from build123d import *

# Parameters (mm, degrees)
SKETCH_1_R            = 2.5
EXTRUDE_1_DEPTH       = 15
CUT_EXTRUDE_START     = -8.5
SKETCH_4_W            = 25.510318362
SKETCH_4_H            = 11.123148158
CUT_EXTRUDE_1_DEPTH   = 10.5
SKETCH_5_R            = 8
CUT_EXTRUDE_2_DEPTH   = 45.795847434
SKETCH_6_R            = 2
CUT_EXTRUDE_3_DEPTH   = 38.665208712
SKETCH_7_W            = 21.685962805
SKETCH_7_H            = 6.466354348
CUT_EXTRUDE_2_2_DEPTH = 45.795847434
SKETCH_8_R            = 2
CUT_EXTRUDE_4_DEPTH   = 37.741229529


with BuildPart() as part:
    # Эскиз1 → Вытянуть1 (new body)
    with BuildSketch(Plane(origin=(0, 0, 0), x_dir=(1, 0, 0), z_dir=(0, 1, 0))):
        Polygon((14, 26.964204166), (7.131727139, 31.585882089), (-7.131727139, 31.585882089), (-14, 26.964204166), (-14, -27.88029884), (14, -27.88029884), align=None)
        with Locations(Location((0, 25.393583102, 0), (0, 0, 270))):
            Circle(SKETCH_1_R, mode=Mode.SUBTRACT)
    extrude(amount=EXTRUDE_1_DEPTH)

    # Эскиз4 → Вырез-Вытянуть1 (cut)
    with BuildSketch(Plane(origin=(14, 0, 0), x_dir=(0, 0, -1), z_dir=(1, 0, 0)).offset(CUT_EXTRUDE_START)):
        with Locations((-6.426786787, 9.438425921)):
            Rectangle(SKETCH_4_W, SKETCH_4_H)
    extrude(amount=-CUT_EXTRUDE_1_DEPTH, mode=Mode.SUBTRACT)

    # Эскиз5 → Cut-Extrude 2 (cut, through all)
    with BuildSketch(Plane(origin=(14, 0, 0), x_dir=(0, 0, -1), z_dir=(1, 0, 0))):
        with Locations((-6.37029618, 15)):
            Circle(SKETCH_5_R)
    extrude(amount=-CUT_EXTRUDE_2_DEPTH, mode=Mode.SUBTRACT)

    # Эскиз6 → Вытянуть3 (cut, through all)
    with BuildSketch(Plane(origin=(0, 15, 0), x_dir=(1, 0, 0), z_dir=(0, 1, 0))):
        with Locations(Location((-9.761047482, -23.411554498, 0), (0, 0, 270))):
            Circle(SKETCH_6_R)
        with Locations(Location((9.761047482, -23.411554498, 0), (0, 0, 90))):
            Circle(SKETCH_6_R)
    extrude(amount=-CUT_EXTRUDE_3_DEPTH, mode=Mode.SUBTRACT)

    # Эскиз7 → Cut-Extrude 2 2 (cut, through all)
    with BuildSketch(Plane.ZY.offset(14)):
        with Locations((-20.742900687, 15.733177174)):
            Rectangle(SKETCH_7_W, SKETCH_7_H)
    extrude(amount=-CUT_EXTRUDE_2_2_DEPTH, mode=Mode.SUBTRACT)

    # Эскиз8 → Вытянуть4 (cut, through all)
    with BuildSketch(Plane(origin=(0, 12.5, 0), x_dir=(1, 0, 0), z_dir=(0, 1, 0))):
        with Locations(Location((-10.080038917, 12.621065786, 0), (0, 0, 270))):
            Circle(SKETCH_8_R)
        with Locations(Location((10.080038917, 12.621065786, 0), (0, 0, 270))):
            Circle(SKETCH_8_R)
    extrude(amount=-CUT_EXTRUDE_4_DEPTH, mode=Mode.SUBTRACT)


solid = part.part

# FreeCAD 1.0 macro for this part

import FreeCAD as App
import Part
import Sketcher

doc = App.newDocument("Part")
body = doc.addObject("PartDesign::Body", "Body")

# Sketch on XZ plane
sketch1 = body.newObject("Sketcher::SketchObject", "Sketch")
sketch1.AttachmentSupport = (doc.getObject("XZ_Plane"), [""])
sketch1.MapMode = "FlatFace"
sketch1.addGeometry(Part.LineSegment(App.Vector(14, -27, 0), App.Vector(7.1, -31.6, 0)), False)
sketch1.addGeometry(Part.LineSegment(App.Vector(7.1, -31.6, 0), App.Vector(-7.1, -31.6, 0)), False)
sketch1.addGeometry(Part.LineSegment(App.Vector(-7.1, -31.6, 0), App.Vector(-14, -27, 0)), False)
sketch1.addGeometry(Part.LineSegment(App.Vector(-14, -27, 0), App.Vector(-14, 27.9, 0)), False)
sketch1.addGeometry(Part.LineSegment(App.Vector(-14, 27.9, 0), App.Vector(14, 27.9, 0)), False)
sketch1.addGeometry(Part.LineSegment(App.Vector(14, 27.9, 0), App.Vector(14, -27, 0)), False)
sketch1.addGeometry(Part.Circle(App.Vector(0, -25.4, 0), App.Vector(0, 0, 1), 2.5), False)
sketch1.addConstraint(Sketcher.Constraint("Coincident", 0, 2, 1, 1))
sketch1.addConstraint(Sketcher.Constraint("Coincident", 1, 2, 2, 1))
sketch1.addConstraint(Sketcher.Constraint("Coincident", 2, 2, 3, 1))
sketch1.addConstraint(Sketcher.Constraint("Coincident", 3, 2, 4, 1))
sketch1.addConstraint(Sketcher.Constraint("Coincident", 4, 2, 5, 1))
sketch1.addConstraint(Sketcher.Constraint("Coincident", 5, 2, 0, 1))
sketch1.addConstraint(Sketcher.Constraint("Horizontal", 1))
sketch1.addConstraint(Sketcher.Constraint("Vertical", 3))
sketch1.addConstraint(Sketcher.Constraint("Horizontal", 4))
sketch1.addConstraint(Sketcher.Constraint("Vertical", 5))
sketch1.addConstraint(Sketcher.Constraint("Symmetric", 2, 2, 5, 2, -2))
sketch1.addConstraint(Sketcher.Constraint("PointOnObject", 6, 3, -2))
sketch1.addConstraint(Sketcher.Constraint("Equal", 0, 2))
sketch1.addConstraint(Sketcher.Constraint("Diameter", 6, 5.0))
sketch1.addConstraint(Sketcher.Constraint("DistanceX", 4, 1, 4, 2, 28.0))
sketch1.addConstraint(Sketcher.Constraint("DistanceY", -1, 1, 3, 2, 27.880299))
sketch1.addConstraint(Sketcher.Constraint("DistanceY", 0, 2, 6, 3, 6.192299))
sketch1.addConstraint(Sketcher.Constraint("Distance", 0, 8.278471))
sketch1.addConstraint(Sketcher.Constraint("DistanceX", 1, 2, 1, 1, 14.263454))
sketch1.addConstraint(Sketcher.Constraint("DistanceY", 3, 1, 3, 2, 54.844503))
pad1 = body.newObject("PartDesign::Pad", "Pad")
pad1.Profile = sketch1
pad1.Length = 15
pad1.Reversed = True

# Sketch on YZ plane
sketch2 = body.newObject("Sketcher::SketchObject", "Sketch001")
sketch2.AttachmentSupport = (doc.getObject("YZ_Plane"), [""])
sketch2.MapMode = "FlatFace"
sketch2.AttachmentOffset = App.Placement(App.Vector(0, 0, 5.5), App.Rotation())
sketch2.addGeometry(Part.LineSegment(App.Vector(15, 19, 0), App.Vector(4, 19, 0)), False)
sketch2.addGeometry(Part.LineSegment(App.Vector(4, 19, 0), App.Vector(4, -6, 0)), False)
sketch2.addGeometry(Part.LineSegment(App.Vector(4, -6, 0), App.Vector(15, -6, 0)), False)
sketch2.addGeometry(Part.LineSegment(App.Vector(15, -6, 0), App.Vector(15, 19, 0)), False)
sketch2.addConstraint(Sketcher.Constraint("Coincident", 0, 2, 1, 1))
sketch2.addConstraint(Sketcher.Constraint("Coincident", 1, 2, 2, 1))
sketch2.addConstraint(Sketcher.Constraint("Coincident", 2, 2, 3, 1))
sketch2.addConstraint(Sketcher.Constraint("Coincident", 3, 2, 0, 1))
sketch2.addConstraint(Sketcher.Constraint("Horizontal", 0))
sketch2.addConstraint(Sketcher.Constraint("Vertical", 1))
sketch2.addConstraint(Sketcher.Constraint("Horizontal", 2))
sketch2.addConstraint(Sketcher.Constraint("Vertical", 3))
sketch2.addConstraint(Sketcher.Constraint("DistanceX", -1, 1, 2, 2, 15.0))
sketch2.addConstraint(Sketcher.Constraint("DistanceX", 0, 2, 0, 1, 11.123148))
sketch2.addConstraint(Sketcher.Constraint("DistanceY", 1, 2, 1, 1, 25.510318))
sketch2.addConstraint(Sketcher.Constraint("DistanceY", -1, 1, 0, 2, 19.181946))
pocket1 = body.newObject("PartDesign::Pocket", "Pocket")
pocket1.Profile = sketch2
pocket1.Length = 10.5

# Sketch on YZ plane
sketch3 = body.newObject("Sketcher::SketchObject", "Sketch002")
sketch3.AttachmentSupport = (doc.getObject("YZ_Plane"), [""])
sketch3.MapMode = "FlatFace"
sketch3.AttachmentOffset = App.Placement(App.Vector(0, 0, 14), App.Rotation())
sketch3.addGeometry(Part.Circle(App.Vector(15, 6, 0), App.Vector(0, 0, 1), 8), False)
sketch3.addConstraint(Sketcher.Constraint("Diameter", 0, 16.0))
sketch3.addConstraint(Sketcher.Constraint("DistanceX", -1, 1, 0, 3, 15.0))
sketch3.addConstraint(Sketcher.Constraint("DistanceY", -1, 1, 0, 3, 6.370296))
pocket2 = body.newObject("PartDesign::Pocket", "Pocket001")
pocket2.Profile = sketch3
pocket2.Type = "ThroughAll"

# Sketch on XZ plane
sketch4 = body.newObject("Sketcher::SketchObject", "Sketch003")
sketch4.AttachmentSupport = (doc.getObject("XZ_Plane"), [""])
sketch4.MapMode = "FlatFace"
sketch4.AttachmentOffset = App.Placement(App.Vector(0, 0, -15), App.Rotation())
sketch4.addGeometry(Part.Circle(App.Vector(-9.8, 23.4, 0), App.Vector(0, 0, 1), 2), False)
sketch4.addGeometry(Part.Circle(App.Vector(9.8, 23.4, 0), App.Vector(0, 0, 1), 2), False)
sketch4.addConstraint(Sketcher.Constraint("Equal", 0, 1))
sketch4.addConstraint(Sketcher.Constraint("Symmetric", 0, 3, 1, 3, -2))
sketch4.addConstraint(Sketcher.Constraint("Diameter", 0, 4.0))
sketch4.addConstraint(Sketcher.Constraint("DistanceX", 0, 3, -1, 1, 9.761047))
sketch4.addConstraint(Sketcher.Constraint("DistanceY", -1, 1, 0, 3, 23.411554))
pocket3 = body.newObject("PartDesign::Pocket", "Pocket002")
pocket3.Profile = sketch4
pocket3.Type = "ThroughAll"
pocket3.Reversed = True

# Sketch on YZ plane
sketch5 = body.newObject("Sketcher::SketchObject", "Sketch004")
sketch5.AttachmentSupport = (doc.getObject("YZ_Plane"), [""])
sketch5.MapMode = "FlatFace"
sketch5.AttachmentOffset = App.Placement(App.Vector(0, 0, -14), App.Rotation())
sketch5.addGeometry(Part.LineSegment(App.Vector(19, -32, 0), App.Vector(12, -32, 0)), False)
sketch5.addGeometry(Part.LineSegment(App.Vector(12, -32, 0), App.Vector(12, -10, 0)), False)
sketch5.addGeometry(Part.LineSegment(App.Vector(12, -10, 0), App.Vector(19, -10, 0)), False)
sketch5.addGeometry(Part.LineSegment(App.Vector(19, -10, 0), App.Vector(19, -32, 0)), False)
sketch5.addConstraint(Sketcher.Constraint("Coincident", 0, 2, 1, 1))
sketch5.addConstraint(Sketcher.Constraint("Coincident", 1, 2, 2, 1))
sketch5.addConstraint(Sketcher.Constraint("Coincident", 2, 2, 3, 1))
sketch5.addConstraint(Sketcher.Constraint("Coincident", 3, 2, 0, 1))
sketch5.addConstraint(Sketcher.Constraint("Horizontal", 0))
sketch5.addConstraint(Sketcher.Constraint("Vertical", 1))
sketch5.addConstraint(Sketcher.Constraint("Horizontal", 2))
sketch5.addConstraint(Sketcher.Constraint("Vertical", 3))
sketch5.addConstraint(Sketcher.Constraint("DistanceX", -1, 1, 0, 2, 12.5))
sketch5.addConstraint(Sketcher.Constraint("DistanceX", 0, 2, 0, 1, 6.466354))
sketch5.addConstraint(Sketcher.Constraint("DistanceY", 1, 1, 1, 2, 21.685963))
sketch5.addConstraint(Sketcher.Constraint("DistanceY", 1, 2, -1, 1, 9.899919))
pocket4 = body.newObject("PartDesign::Pocket", "Pocket003")
pocket4.Profile = sketch5
pocket4.Type = "ThroughAll"
pocket4.Reversed = True

# Sketch on XZ plane
sketch6 = body.newObject("Sketcher::SketchObject", "Sketch005")
sketch6.AttachmentSupport = (doc.getObject("XZ_Plane"), [""])
sketch6.MapMode = "FlatFace"
sketch6.AttachmentOffset = App.Placement(App.Vector(0, 0, -12.5), App.Rotation())
sketch6.addGeometry(Part.Circle(App.Vector(-10.1, -12.6, 0), App.Vector(0, 0, 1), 2), False)
sketch6.addGeometry(Part.Circle(App.Vector(10.1, -12.6, 0), App.Vector(0, 0, 1), 2), False)
sketch6.addConstraint(Sketcher.Constraint("Equal", 0, 1))
sketch6.addConstraint(Sketcher.Constraint("Symmetric", 0, 3, 1, 3, -2))
sketch6.addConstraint(Sketcher.Constraint("Diameter", 0, 4.0))
sketch6.addConstraint(Sketcher.Constraint("DistanceX", 0, 3, -1, 1, 10.080039))
sketch6.addConstraint(Sketcher.Constraint("DistanceY", 0, 3, -1, 1, 12.621066))
pocket5 = body.newObject("PartDesign::Pocket", "Pocket004")
pocket5.Profile = sketch6
pocket5.Type = "ThroughAll"
pocket5.Reversed = True

doc.recompute()
